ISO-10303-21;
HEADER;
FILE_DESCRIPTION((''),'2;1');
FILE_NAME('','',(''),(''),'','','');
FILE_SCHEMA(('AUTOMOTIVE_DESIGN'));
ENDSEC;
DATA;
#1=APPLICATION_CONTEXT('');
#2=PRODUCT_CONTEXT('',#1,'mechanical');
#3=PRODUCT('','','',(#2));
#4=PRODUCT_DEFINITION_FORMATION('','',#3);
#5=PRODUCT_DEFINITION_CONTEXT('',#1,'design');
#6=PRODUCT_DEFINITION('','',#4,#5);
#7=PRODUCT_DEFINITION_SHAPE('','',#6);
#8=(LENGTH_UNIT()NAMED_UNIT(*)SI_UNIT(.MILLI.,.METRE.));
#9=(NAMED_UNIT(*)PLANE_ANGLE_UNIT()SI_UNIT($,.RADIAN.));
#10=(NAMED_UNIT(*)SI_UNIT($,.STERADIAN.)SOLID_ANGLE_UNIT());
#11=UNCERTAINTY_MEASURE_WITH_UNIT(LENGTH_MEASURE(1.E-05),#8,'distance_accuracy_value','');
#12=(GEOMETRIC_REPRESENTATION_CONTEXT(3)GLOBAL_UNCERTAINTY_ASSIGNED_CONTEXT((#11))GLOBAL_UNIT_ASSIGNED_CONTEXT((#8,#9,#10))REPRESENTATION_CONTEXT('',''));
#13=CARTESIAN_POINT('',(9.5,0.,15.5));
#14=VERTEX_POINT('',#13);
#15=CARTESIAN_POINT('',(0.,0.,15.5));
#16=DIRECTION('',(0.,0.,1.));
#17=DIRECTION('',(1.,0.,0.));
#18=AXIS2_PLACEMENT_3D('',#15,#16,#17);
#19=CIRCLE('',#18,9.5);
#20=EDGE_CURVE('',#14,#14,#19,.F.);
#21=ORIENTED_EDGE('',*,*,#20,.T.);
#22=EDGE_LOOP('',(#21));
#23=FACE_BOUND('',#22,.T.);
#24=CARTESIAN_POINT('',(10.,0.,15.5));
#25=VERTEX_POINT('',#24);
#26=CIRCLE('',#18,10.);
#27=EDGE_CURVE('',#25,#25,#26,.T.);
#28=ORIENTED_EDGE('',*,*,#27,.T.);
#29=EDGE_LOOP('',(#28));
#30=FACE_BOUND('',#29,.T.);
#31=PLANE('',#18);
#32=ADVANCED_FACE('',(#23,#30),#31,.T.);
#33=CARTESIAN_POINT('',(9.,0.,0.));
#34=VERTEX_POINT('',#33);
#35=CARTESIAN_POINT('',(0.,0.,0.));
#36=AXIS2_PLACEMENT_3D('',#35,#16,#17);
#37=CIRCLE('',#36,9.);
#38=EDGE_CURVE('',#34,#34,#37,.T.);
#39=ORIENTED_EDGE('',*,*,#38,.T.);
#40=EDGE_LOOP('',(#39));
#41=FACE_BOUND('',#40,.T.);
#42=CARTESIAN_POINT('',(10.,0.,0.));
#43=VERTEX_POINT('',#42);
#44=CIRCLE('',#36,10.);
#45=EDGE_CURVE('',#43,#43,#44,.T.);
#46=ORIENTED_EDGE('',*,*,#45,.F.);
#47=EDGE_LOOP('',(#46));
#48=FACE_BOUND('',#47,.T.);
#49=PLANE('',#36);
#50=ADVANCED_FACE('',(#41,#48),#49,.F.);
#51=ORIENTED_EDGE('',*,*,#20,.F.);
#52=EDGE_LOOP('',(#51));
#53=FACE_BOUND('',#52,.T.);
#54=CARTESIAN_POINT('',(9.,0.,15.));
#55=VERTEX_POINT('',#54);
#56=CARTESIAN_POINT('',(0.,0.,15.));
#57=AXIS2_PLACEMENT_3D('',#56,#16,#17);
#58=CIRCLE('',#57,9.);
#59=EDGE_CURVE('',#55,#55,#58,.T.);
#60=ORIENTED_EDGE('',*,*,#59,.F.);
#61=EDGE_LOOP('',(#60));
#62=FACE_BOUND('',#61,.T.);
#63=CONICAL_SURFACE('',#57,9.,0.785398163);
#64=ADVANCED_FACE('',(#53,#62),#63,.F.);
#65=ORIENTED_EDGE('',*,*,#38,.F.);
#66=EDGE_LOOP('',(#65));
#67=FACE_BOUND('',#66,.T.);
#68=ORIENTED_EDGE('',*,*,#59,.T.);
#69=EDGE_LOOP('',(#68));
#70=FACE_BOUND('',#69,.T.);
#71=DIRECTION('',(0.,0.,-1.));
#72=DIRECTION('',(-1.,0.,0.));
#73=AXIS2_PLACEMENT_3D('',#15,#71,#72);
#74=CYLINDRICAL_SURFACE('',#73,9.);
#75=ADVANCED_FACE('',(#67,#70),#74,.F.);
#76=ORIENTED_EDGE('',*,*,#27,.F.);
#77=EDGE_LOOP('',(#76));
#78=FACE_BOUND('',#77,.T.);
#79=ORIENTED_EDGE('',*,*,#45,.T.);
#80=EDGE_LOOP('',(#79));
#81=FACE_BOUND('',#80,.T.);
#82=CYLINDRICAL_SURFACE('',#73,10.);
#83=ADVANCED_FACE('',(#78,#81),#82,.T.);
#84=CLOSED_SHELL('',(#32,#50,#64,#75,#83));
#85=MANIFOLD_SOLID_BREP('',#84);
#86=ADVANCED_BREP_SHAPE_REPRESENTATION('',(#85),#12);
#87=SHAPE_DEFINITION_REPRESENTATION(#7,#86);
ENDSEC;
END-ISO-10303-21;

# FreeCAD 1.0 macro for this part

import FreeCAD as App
import Part
import Sketcher
from FreeCAD import Vector


def edges_at(feature, points):
    """Names of the edges that pass closest to the given points."""
    edges = feature.Shape.Edges
    near = lambda p: min(range(len(edges)), key=lambda i: edges[i].distToShape(Part.Vertex(*p))[0])
    return sorted({f"Edge{near(p) + 1}" for p in points})

doc = App.newDocument("Part")
body = doc.addObject("PartDesign::Body", "Body")

sketch1 = body.newObject("Sketcher::SketchObject", "Sketch")
sketch1.AttachmentSupport = (doc.getObject("XY_Plane"), [""])
sketch1.MapMode = "FlatFace"
sketch1.addGeometry([
    Part.Circle(Vector(0, 0, 0), Vector(0, 0, 1), 10),
    Part.Circle(Vector(0, 0, 0), Vector(0, 0, 1), 9),
], False)
sketch1.addConstraint([
    Sketcher.Constraint("Coincident", 0, 3, -1, 1),
    Sketcher.Constraint("Coincident", 1, 3, -1, 1),
    Sketcher.Constraint("Diameter", 0, 20.0),
    Sketcher.Constraint("Diameter", 1, 18.0),
])
pad1 = body.newObject("PartDesign::Pad", "Pad")
pad1.Profile = sketch1
pad1.Length = 15.5
doc.recompute()

chamfer = body.newObject("PartDesign::Chamfer", "Chamfer")
chamfer.Base = (pad1, edges_at(pad1, [(-9, 0, 15.5)]))
chamfer.Size = 0.5

doc.recompute()
